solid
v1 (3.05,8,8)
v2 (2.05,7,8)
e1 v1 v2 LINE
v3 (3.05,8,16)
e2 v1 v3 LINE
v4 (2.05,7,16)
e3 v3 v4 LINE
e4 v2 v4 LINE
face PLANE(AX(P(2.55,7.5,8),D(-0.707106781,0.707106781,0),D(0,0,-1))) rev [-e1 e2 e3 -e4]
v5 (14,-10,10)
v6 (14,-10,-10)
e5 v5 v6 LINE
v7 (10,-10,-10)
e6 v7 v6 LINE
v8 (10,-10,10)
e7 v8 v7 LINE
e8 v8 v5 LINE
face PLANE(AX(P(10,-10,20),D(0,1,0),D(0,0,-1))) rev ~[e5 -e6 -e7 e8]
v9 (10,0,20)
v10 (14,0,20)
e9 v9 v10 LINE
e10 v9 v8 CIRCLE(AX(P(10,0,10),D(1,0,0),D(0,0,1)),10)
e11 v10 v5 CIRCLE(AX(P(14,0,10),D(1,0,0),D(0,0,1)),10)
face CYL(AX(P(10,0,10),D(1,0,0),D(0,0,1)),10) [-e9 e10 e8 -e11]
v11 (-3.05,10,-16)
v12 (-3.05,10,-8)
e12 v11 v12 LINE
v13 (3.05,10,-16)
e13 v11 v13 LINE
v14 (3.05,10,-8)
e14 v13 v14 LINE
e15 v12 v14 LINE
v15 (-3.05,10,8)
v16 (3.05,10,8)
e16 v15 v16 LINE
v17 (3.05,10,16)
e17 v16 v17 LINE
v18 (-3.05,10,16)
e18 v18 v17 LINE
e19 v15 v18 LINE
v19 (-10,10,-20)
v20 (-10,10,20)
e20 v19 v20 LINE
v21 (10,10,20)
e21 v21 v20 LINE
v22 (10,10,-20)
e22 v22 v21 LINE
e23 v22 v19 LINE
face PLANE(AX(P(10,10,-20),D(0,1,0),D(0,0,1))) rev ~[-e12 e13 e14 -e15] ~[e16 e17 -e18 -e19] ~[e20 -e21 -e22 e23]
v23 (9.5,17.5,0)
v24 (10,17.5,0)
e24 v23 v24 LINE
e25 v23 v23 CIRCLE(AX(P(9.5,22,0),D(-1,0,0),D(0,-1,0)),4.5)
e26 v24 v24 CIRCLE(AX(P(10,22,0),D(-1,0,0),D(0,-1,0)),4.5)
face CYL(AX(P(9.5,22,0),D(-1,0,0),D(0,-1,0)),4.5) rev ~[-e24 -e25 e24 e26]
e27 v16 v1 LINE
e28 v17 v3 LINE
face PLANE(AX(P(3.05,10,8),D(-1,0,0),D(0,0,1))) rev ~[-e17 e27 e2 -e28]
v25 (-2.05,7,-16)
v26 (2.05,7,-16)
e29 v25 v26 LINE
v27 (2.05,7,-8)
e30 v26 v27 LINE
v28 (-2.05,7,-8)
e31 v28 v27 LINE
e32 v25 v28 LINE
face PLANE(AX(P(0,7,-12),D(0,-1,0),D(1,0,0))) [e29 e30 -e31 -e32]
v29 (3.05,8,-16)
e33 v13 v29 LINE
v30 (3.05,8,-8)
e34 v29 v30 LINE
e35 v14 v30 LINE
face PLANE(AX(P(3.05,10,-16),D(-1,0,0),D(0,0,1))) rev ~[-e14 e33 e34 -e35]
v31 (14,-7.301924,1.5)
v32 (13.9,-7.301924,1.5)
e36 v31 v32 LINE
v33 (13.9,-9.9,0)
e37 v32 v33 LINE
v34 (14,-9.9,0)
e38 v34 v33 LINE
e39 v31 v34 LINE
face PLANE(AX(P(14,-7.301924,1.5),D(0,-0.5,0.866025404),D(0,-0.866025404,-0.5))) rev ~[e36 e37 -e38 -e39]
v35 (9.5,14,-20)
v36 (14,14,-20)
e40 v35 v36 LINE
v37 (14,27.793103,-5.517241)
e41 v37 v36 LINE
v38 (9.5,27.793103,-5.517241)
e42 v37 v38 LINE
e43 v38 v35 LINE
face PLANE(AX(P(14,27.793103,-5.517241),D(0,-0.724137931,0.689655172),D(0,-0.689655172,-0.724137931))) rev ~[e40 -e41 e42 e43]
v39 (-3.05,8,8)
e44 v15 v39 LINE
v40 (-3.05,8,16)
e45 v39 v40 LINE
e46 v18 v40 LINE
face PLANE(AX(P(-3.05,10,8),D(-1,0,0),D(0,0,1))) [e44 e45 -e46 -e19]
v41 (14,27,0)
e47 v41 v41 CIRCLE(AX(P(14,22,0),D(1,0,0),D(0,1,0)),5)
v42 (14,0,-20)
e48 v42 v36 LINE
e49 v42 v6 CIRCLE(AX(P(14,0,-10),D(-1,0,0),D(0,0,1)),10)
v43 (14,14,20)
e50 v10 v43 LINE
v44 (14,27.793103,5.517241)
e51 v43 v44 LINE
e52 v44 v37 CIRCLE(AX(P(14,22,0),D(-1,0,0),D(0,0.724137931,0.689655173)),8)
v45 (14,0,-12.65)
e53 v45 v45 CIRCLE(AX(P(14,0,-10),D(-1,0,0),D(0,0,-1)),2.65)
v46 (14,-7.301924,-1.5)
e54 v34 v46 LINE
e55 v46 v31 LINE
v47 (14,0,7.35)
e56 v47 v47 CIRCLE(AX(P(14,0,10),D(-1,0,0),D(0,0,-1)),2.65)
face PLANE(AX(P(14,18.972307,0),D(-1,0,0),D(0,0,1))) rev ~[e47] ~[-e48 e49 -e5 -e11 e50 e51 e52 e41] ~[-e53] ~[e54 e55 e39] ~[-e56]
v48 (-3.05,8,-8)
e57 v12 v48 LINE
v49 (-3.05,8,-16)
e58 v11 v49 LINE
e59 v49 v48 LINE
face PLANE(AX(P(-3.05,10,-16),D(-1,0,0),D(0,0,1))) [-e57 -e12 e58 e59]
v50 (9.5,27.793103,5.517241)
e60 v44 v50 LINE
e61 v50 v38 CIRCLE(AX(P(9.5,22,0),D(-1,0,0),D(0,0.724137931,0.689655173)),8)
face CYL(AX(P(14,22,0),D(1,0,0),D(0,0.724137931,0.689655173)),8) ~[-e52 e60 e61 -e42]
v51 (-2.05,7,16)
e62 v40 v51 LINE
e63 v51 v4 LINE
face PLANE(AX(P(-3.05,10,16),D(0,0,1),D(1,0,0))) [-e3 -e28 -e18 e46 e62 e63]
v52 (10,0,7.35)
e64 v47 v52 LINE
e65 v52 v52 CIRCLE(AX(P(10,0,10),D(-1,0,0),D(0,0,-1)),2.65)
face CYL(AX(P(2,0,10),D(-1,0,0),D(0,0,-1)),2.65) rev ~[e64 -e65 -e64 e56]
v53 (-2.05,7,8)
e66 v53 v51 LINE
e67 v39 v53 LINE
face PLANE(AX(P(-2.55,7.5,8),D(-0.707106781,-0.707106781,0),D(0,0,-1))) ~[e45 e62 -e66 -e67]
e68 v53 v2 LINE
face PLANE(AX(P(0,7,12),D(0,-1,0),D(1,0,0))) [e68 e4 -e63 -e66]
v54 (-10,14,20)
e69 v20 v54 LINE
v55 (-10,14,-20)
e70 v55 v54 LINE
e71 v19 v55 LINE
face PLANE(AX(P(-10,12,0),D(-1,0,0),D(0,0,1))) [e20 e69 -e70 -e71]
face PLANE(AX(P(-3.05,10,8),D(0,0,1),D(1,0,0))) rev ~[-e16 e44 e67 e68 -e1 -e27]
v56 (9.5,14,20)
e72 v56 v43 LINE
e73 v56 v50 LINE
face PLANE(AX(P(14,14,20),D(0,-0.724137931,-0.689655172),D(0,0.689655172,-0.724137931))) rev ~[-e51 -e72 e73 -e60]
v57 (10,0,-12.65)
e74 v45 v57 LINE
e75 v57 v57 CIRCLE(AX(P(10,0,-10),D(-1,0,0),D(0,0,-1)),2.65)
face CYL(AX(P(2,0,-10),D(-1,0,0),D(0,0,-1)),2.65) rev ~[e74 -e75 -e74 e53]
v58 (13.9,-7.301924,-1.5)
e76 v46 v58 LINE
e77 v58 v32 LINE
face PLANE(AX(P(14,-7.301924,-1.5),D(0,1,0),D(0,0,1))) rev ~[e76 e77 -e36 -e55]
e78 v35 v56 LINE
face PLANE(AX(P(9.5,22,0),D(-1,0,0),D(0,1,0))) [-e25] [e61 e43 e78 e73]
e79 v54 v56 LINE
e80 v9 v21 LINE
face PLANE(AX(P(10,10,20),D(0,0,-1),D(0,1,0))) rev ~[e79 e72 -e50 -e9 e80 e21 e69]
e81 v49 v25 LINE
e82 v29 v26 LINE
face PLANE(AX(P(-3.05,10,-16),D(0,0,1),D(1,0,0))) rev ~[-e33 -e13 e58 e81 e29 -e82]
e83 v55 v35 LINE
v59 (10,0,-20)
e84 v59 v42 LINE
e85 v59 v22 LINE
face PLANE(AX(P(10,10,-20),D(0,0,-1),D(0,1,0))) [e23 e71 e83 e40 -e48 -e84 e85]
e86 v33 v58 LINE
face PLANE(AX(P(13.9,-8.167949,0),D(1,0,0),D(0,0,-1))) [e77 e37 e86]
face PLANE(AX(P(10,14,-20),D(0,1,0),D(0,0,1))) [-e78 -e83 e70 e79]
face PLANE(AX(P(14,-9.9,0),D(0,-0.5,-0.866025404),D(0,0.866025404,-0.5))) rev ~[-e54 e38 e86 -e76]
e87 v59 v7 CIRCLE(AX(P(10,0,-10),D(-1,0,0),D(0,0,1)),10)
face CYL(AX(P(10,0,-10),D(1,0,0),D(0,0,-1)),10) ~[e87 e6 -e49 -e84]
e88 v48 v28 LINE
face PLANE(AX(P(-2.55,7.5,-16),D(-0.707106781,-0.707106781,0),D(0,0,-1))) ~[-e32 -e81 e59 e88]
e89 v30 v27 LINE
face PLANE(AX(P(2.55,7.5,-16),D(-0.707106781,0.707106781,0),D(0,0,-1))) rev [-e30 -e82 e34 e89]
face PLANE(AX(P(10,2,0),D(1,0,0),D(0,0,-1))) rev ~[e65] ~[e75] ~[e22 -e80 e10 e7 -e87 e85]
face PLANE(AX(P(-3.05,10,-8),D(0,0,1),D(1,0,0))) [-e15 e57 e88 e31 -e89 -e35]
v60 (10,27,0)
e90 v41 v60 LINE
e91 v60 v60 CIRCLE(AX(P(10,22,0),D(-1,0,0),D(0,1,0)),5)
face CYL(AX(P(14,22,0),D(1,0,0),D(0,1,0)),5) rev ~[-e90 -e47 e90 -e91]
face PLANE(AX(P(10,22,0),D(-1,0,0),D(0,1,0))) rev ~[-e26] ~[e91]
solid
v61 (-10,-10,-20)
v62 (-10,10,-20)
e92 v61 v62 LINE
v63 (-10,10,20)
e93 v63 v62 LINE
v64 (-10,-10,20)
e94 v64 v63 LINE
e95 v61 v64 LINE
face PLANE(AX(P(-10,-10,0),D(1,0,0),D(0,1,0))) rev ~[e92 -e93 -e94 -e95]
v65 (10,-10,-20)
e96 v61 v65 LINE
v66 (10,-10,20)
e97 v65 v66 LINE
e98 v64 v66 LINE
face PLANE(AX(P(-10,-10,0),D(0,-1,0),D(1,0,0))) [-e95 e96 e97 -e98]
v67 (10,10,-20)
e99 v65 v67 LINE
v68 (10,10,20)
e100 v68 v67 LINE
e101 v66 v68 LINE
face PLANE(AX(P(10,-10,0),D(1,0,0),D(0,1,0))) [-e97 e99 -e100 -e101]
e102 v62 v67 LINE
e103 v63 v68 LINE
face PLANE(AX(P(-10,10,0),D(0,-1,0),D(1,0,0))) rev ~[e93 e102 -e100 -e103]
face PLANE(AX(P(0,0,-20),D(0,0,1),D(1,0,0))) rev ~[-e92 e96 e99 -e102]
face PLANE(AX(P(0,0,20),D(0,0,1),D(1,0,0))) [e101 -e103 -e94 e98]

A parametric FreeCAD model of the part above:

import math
import FreeCAD as App
import Part
import Sketcher
from FreeCAD import Vector
Q = App.Units.Quantity


def edges_at(feature, points):
    """Names of the edges that pass closest to the given points."""
    edges = feature.Shape.Edges
    near = lambda p: min(range(len(edges)), key=lambda i: edges[i].distToShape(Part.Vertex(*p))[0])
    return sorted({f"Edge{near(p) + 1}" for p in points})

doc = App.newDocument("Part")
body = doc.addObject("PartDesign::Body", "Body")

# Sketch on XY plane
sketch1 = body.newObject("Sketcher::SketchObject", "Sketch")
sketch1.AttachmentSupport = (doc.getObject("XY_Plane"), [""])
sketch1.MapMode = "FlatFace"
sketch1.addGeometry([
    Part.LineSegment(Vector(-10, 10, 0), Vector(-10, -10, 0)),
    Part.LineSegment(Vector(-10, -10, 0), Vector(10, -10, 0)),
    Part.LineSegment(Vector(10, -10, 0), Vector(10, 10, 0)),
    Part.LineSegment(Vector(10, 10, 0), Vector(-10, 10, 0)),
], False)
sketch1.addConstraint([
    Sketcher.Constraint("Coincident", 0, 2, 1, 1),
    Sketcher.Constraint("Coincident", 1, 2, 2, 1),
    Sketcher.Constraint("Coincident", 2, 2, 3, 1),
    Sketcher.Constraint("Coincident", 3, 2, 0, 1),
    Sketcher.Constraint("Vertical", 0),
    Sketcher.Constraint("Horizontal", 1),
    Sketcher.Constraint("Vertical", 2),
    Sketcher.Constraint("Horizontal", 3),
    Sketcher.Constraint("Symmetric", 0, 2, 2, 2, -1, 1),
    Sketcher.Constraint("Equal", 3, 0),
    Sketcher.Constraint("DistanceX", 1, 1, 1, 2, Q("20 mm")),
])
pad1 = body.newObject("PartDesign::Pad", "Pad")
pad1.Profile = sketch1
pad1.Length = 40
pad1.Midplane = True
body2 = doc.addObject("PartDesign::Body", "Body001")

# Sketch on YZ plane
sketch2 = body2.newObject("Sketcher::SketchObject", "Sketch001")
sketch2.AttachmentSupport = (doc.getObject("YZ_Plane001"), [""])
sketch2.MapMode = "FlatFace"
sketch2.AttachmentOffset = App.Placement(Vector(0, 0, 10), App.Rotation())
sketch2.addGeometry([
    Part.LineSegment(Vector(14, 20, 0), Vector(-10, 20, 0)),
    Part.LineSegment(Vector(-10, 20, 0), Vector(-10, -20, 0)),
    Part.LineSegment(Vector(-10, -20, 0), Vector(14, -20, 0)),
    Part.LineSegment(Vector(14, -20, 0), Vector(14, 20, 0)),
], False)
sketch2.addConstraint([
    Sketcher.Constraint("Coincident", 0, 2, 1, 1),
    Sketcher.Constraint("Coincident", 1, 2, 2, 1),
    Sketcher.Constraint("Coincident", 2, 2, 3, 1),
    Sketcher.Constraint("Coincident", 3, 2, 0, 1),
    Sketcher.Constraint("Horizontal", 0),
    Sketcher.Constraint("Vertical", 1),
    Sketcher.Constraint("Horizontal", 2),
    Sketcher.Constraint("Vertical", 3),
    Sketcher.Constraint("DistanceX", 0, 2, 0, 1, Q("24 mm")),
    Sketcher.Constraint("DistanceY", 1, 2, 1, 1, Q("40 mm")),
    Sketcher.Constraint("DistanceX", 0, 2, -1, 1, Q("10 mm")),
    Sketcher.Constraint("DistanceY", -1, 1, 0, 2, Q("20 mm")),
])
pad2 = body2.newObject("PartDesign::Pad", "Pad001")
pad2.Profile = sketch2
pad2.Length = 4

# Sketch on XZ plane
sketch3 = body2.newObject("Sketcher::SketchObject", "Sketch002")
sketch3.AttachmentSupport = (doc.getObject("XZ_Plane001"), [""])
sketch3.MapMode = "FlatFace"
sketch3.addGeometry([
    Part.LineSegment(Vector(-10, 10, 0), Vector(14, 10, 0)),
    Part.LineSegment(Vector(14, 10, 0), Vector(14, 7.35, 0)),
    Part.LineSegment(Vector(14, 7.35, 0), Vector(-10, 7.35, 0)),
    Part.LineSegment(Vector(-10, 7.35, 0), Vector(-10, 10, 0)),
], False)
sketch3.addGeometry(Part.LineSegment(Vector(14, 10, 0), Vector(-10, 10, 0)), True)  # axis
sketch3.addConstraint([
    Sketcher.Constraint("Coincident", 0, 2, 1, 1),
    Sketcher.Constraint("Coincident", 1, 2, 2, 1),
    Sketcher.Constraint("Coincident", 2, 2, 3, 1),
    Sketcher.Constraint("Coincident", 3, 2, 0, 1),
    Sketcher.Constraint("Horizontal", 0),
    Sketcher.Constraint("Vertical", 1),
    Sketcher.Constraint("Horizontal", 2),
    Sketcher.Constraint("Vertical", 3),
    Sketcher.Constraint("Horizontal", 4),
    Sketcher.Constraint("Coincident", 4, 1, 0, 2),
    Sketcher.Constraint("Vertical", 2, 2, 4, 2),
    Sketcher.Constraint("DistanceX", 0, 1, 0, 2, Q("24 mm")),
    Sketcher.Constraint("DistanceX", -1, 1, 0, 2, Q("14 mm")),
    Sketcher.Constraint("DistanceY", -1, 1, 0, 2, Q("10 mm")),
    Sketcher.Constraint("DistanceY", 1, 2, 1, 1, Q("2.65 mm")),
])
groove = body2.newObject("PartDesign::Groove", "Groove")
groove.Profile = sketch3
groove.ReferenceAxis = (sketch3, ["Axis0"])
groove.Angle = 360
doc.recompute()

linearpattern = body2.newObject("PartDesign::LinearPattern", "LinearPattern")
linearpattern.Originals = [groove]
linearpattern.Direction = (doc.getObject("Z_Axis001"), [""])
linearpattern.Mode = "offset"
linearpattern.Offset = 20
linearpattern.Occurrences = 2
linearpattern.Reversed = True
body2.Tip = linearpattern

# Sketch on YZ plane
sketch4 = body2.newObject("Sketcher::SketchObject", "Sketch003")
sketch4.AttachmentSupport = (doc.getObject("YZ_Plane001"), [""])
sketch4.MapMode = "FlatFace"
sketch4.AttachmentOffset = App.Placement(Vector(0, 0, 10), App.Rotation())
sketch4.addGeometry([
    Part.LineSegment(Vector(14, -20, 0), Vector(10, -20, 0)),
    Part.LineSegment(Vector(10, -20, 0), Vector(10, 20, 0)),
    Part.LineSegment(Vector(10, 20, 0), Vector(14, 20, 0)),
    Part.LineSegment(Vector(14, 20, 0), Vector(14, -20, 0)),
], False)
sketch4.addConstraint([
    Sketcher.Constraint("Coincident", 0, 2, 1, 1),
    Sketcher.Constraint("Coincident", 1, 2, 2, 1),
    Sketcher.Constraint("Coincident", 2, 2, 3, 1),
    Sketcher.Constraint("Coincident", 3, 2, 0, 1),
    Sketcher.Constraint("Horizontal", 0),
    Sketcher.Constraint("Vertical", 1),
    Sketcher.Constraint("Horizontal", 2),
    Sketcher.Constraint("Vertical", 3),
    Sketcher.Constraint("DistanceX", 0, 2, 0, 1, Q("4 mm")),
    Sketcher.Constraint("DistanceY", 1, 1, 1, 2, Q("40 mm")),
    Sketcher.Constraint("DistanceX", -1, 1, 0, 2, Q("10 mm")),
    Sketcher.Constraint("DistanceY", 0, 2, -1, 1, Q("20 mm")),
])
pad3 = body2.newObject("PartDesign::Pad", "Pad002")
pad3.Profile = sketch4
pad3.Length = 20
pad3.Reversed = True

# Sketch on XZ plane
sketch5 = body2.newObject("Sketcher::SketchObject", "Sketch004")
sketch5.AttachmentSupport = (doc.getObject("XZ_Plane001"), [""])
sketch5.MapMode = "FlatFace"
sketch5.AttachmentOffset = App.Placement(Vector(0, 0, -10), App.Rotation())
sketch5.addGeometry([
    Part.LineSegment(Vector(-3.05, 16, 0), Vector(-3.05, 8, 0)),  # 0
    Part.LineSegment(Vector(-3.05, 8, 0), Vector(3.05, 8, 0)),  # 1
    Part.LineSegment(Vector(3.05, 8, 0), Vector(3.05, 16, 0)),  # 2
    Part.LineSegment(Vector(3.05, 16, 0), Vector(-3.05, 16, 0)),  # 3
    Part.LineSegment(Vector(-3.05, -8, 0), Vector(-3.05, -16, 0)),  # 4
    Part.LineSegment(Vector(-3.05, -16, 0), Vector(3.05, -16, 0)),  # 5
    Part.LineSegment(Vector(3.05, -16, 0), Vector(3.05, -8, 0)),  # 6
    Part.LineSegment(Vector(3.05, -8, 0), Vector(-3.05, -8, 0)),  # 7
], False)
sketch5.addConstraint([
    Sketcher.Constraint("Coincident", 0, 2, 1, 1),
    Sketcher.Constraint("Coincident", 1, 2, 2, 1),
    Sketcher.Constraint("Coincident", 2, 2, 3, 1),
    Sketcher.Constraint("Coincident", 3, 2, 0, 1),
    Sketcher.Constraint("Coincident", 4, 2, 5, 1),
    Sketcher.Constraint("Coincident", 5, 2, 6, 1),
    Sketcher.Constraint("Coincident", 6, 2, 7, 1),
    Sketcher.Constraint("Coincident", 7, 2, 4, 1),
    Sketcher.Constraint("Vertical", 0),
    Sketcher.Constraint("Horizontal", 1),
    Sketcher.Constraint("Vertical", 2),
    Sketcher.Constraint("Horizontal", 3),
    Sketcher.Constraint("Vertical", 4),
    Sketcher.Constraint("Horizontal", 5),
    Sketcher.Constraint("Vertical", 6),
    Sketcher.Constraint("Horizontal", 7),
    Sketcher.Constraint("Symmetric", 2, 2, 4, 2, -1, 1),
    Sketcher.Constraint("Symmetric", 0, 2, 6, 2, -1, 1),
    Sketcher.Constraint("Vertical", 3, 2, 4, 2),
    Sketcher.Constraint("DistanceY", 0, 2, 0, 1, Q("8 mm")),
    Sketcher.Constraint("DistanceX", 1, 1, 1, 2, Q("6.1 mm")),
    Sketcher.Constraint("DistanceY", -1, 1, 0, 2, Q("8 mm")),
])
pad4 = body2.newObject("PartDesign::Pad", "Pad003")
pad4.Profile = sketch5
pad4.Length = 3
doc.recompute()

chamfer = body2.newObject("PartDesign::Chamfer", "Chamfer")
chamfer.Base = (pad4, edges_at(pad4, [
    (-3.05, 7, 12),
    (3.05, 7, 12),
    (-3.05, 7, -12),
    (3.05, 7, -12),
]))
chamfer.Size = 1

# Sketch on YZ plane
sketch6 = body2.newObject("Sketcher::SketchObject", "Sketch005")
sketch6.AttachmentSupport = (doc.getObject("YZ_Plane001"), [""])
sketch6.MapMode = "FlatFace"
sketch6.AttachmentOffset = App.Placement(Vector(0, 0, 14), App.Rotation())
sketch6.addGeometry([
    Part.ArcOfCircle(Part.Circle(Vector(22, 0, 0), Vector(0, 0, 1), 8), math.radians(-43.602819), math.radians(43.602819)),  # 0
    Part.LineSegment(Vector(27.793103, 5.517241, 0), Vector(14, 20, 0)),  # 1
    Part.LineSegment(Vector(14, 20, 0), Vector(14, -20, 0)),  # 2
    Part.LineSegment(Vector(14, -20, 0), Vector(27.793103, -5.517241, 0)),  # 3
    Part.Circle(Vector(22, 0, 0), Vector(0, 0, 1), 5),  # 4
], False)
sketch6.addConstraint([
    Sketcher.Constraint("Tangent", 0, 2, 1, 1),
    Sketcher.Constraint("Coincident", 1, 2, 2, 1),
    Sketcher.Constraint("Coincident", 2, 2, 3, 1),
    Sketcher.Constraint("Tangent", 3, 2, 0, 1),
    Sketcher.Constraint("Vertical", 2),
    Sketcher.Constraint("Coincident", 4, 3, 0, 3),
    Sketcher.Constraint("Symmetric", 0, 2, 3, 2, -1),
    Sketcher.Constraint("Diameter", 4, Q("10 mm")),
    Sketcher.Constraint("Radius", 0, Q("8 mm")),
    Sketcher.Constraint("DistanceY", 2, 2, 2, 1, Q("40 mm")),
    Sketcher.Constraint("Distance", 1, Q("20 mm")),
    Sketcher.Constraint("DistanceX", -1, 1, 0, 3, Q("22 mm")),
])
pad5 = body2.newObject("PartDesign::Pad", "Pad004")
pad5.Profile = sketch6
pad5.Length = 4.5
pad5.Reversed = True

# Sketch on YZ plane
sketch7 = body2.newObject("Sketcher::SketchObject", "Sketch006")
sketch7.AttachmentSupport = (doc.getObject("YZ_Plane001"), [""])
sketch7.MapMode = "FlatFace"
sketch7.AttachmentOffset = App.Placement(Vector(0, 0, 9.5), App.Rotation())
sketch7.addGeometry([
    Part.Circle(Vector(22, 0, 0), Vector(0, 0, 1), 5),
    Part.Circle(Vector(22, 0, 0), Vector(0, 0, 1), 4.5),
], False)
sketch7.addConstraint([
    Sketcher.Constraint("Coincident", 1, 3, 0, 3),
    Sketcher.Constraint("PointOnObject", 0, 3, -1),
    Sketcher.Constraint("Diameter", 0, Q("10 mm")),
    Sketcher.Constraint("Diameter", 1, Q("9 mm")),
    Sketcher.Constraint("DistanceX", -1, 1, 0, 3, Q("22 mm")),
])
pad6 = body2.newObject("PartDesign::Pad", "Pad005")
pad6.Profile = sketch7
pad6.Length = 0.5
doc.recompute()

fillet = body2.newObject("PartDesign::Fillet", "Fillet")
fillet.Base = (pad6, edges_at(pad6, [(12, -10, -20), (12, -10, 20)]))
fillet.Radius = 10

# Sketch on YZ plane
sketch8 = body2.newObject("Sketcher::SketchObject", "Sketch007")
sketch8.AttachmentSupport = (doc.getObject("YZ_Plane001"), [""])
sketch8.MapMode = "FlatFace"
sketch8.AttachmentOffset = App.Placement(Vector(0, 0, 14), App.Rotation())
sketch8.addGeometry([
    Part.LineSegment(Vector(-9.9, 0, 0), Vector(-7.301924, -1.5, 0)),
    Part.LineSegment(Vector(-7.301924, -1.5, 0), Vector(-7.301924, 1.5, 0)),
    Part.LineSegment(Vector(-7.301924, 1.5, 0), Vector(-9.9, 0, 0)),
], False)
sketch8.addConstraint([
    Sketcher.Constraint("Coincident", 0, 2, 1, 1),
    Sketcher.Constraint("Coincident", 1, 2, 2, 1),
    Sketcher.Constraint("Coincident", 2, 2, 0, 1),
    Sketcher.Constraint("Vertical", 1),
    Sketcher.Constraint("PointOnObject", 2, 2, -1),
    Sketcher.Constraint("Equal", 0, 2),
    Sketcher.Constraint("DistanceY", 1, 1, 1, 2, Q("3 mm")),
    Sketcher.Constraint("Angle", 0, Q("-30 deg")),
    Sketcher.Constraint("DistanceX", 2, 2, -1, 1, Q("9.9 mm")),
])
pocket1 = body2.newObject("PartDesign::Pocket", "Pocket")
pocket1.Profile = sketch8
pocket1.Length = 0.1

doc.recompute()
